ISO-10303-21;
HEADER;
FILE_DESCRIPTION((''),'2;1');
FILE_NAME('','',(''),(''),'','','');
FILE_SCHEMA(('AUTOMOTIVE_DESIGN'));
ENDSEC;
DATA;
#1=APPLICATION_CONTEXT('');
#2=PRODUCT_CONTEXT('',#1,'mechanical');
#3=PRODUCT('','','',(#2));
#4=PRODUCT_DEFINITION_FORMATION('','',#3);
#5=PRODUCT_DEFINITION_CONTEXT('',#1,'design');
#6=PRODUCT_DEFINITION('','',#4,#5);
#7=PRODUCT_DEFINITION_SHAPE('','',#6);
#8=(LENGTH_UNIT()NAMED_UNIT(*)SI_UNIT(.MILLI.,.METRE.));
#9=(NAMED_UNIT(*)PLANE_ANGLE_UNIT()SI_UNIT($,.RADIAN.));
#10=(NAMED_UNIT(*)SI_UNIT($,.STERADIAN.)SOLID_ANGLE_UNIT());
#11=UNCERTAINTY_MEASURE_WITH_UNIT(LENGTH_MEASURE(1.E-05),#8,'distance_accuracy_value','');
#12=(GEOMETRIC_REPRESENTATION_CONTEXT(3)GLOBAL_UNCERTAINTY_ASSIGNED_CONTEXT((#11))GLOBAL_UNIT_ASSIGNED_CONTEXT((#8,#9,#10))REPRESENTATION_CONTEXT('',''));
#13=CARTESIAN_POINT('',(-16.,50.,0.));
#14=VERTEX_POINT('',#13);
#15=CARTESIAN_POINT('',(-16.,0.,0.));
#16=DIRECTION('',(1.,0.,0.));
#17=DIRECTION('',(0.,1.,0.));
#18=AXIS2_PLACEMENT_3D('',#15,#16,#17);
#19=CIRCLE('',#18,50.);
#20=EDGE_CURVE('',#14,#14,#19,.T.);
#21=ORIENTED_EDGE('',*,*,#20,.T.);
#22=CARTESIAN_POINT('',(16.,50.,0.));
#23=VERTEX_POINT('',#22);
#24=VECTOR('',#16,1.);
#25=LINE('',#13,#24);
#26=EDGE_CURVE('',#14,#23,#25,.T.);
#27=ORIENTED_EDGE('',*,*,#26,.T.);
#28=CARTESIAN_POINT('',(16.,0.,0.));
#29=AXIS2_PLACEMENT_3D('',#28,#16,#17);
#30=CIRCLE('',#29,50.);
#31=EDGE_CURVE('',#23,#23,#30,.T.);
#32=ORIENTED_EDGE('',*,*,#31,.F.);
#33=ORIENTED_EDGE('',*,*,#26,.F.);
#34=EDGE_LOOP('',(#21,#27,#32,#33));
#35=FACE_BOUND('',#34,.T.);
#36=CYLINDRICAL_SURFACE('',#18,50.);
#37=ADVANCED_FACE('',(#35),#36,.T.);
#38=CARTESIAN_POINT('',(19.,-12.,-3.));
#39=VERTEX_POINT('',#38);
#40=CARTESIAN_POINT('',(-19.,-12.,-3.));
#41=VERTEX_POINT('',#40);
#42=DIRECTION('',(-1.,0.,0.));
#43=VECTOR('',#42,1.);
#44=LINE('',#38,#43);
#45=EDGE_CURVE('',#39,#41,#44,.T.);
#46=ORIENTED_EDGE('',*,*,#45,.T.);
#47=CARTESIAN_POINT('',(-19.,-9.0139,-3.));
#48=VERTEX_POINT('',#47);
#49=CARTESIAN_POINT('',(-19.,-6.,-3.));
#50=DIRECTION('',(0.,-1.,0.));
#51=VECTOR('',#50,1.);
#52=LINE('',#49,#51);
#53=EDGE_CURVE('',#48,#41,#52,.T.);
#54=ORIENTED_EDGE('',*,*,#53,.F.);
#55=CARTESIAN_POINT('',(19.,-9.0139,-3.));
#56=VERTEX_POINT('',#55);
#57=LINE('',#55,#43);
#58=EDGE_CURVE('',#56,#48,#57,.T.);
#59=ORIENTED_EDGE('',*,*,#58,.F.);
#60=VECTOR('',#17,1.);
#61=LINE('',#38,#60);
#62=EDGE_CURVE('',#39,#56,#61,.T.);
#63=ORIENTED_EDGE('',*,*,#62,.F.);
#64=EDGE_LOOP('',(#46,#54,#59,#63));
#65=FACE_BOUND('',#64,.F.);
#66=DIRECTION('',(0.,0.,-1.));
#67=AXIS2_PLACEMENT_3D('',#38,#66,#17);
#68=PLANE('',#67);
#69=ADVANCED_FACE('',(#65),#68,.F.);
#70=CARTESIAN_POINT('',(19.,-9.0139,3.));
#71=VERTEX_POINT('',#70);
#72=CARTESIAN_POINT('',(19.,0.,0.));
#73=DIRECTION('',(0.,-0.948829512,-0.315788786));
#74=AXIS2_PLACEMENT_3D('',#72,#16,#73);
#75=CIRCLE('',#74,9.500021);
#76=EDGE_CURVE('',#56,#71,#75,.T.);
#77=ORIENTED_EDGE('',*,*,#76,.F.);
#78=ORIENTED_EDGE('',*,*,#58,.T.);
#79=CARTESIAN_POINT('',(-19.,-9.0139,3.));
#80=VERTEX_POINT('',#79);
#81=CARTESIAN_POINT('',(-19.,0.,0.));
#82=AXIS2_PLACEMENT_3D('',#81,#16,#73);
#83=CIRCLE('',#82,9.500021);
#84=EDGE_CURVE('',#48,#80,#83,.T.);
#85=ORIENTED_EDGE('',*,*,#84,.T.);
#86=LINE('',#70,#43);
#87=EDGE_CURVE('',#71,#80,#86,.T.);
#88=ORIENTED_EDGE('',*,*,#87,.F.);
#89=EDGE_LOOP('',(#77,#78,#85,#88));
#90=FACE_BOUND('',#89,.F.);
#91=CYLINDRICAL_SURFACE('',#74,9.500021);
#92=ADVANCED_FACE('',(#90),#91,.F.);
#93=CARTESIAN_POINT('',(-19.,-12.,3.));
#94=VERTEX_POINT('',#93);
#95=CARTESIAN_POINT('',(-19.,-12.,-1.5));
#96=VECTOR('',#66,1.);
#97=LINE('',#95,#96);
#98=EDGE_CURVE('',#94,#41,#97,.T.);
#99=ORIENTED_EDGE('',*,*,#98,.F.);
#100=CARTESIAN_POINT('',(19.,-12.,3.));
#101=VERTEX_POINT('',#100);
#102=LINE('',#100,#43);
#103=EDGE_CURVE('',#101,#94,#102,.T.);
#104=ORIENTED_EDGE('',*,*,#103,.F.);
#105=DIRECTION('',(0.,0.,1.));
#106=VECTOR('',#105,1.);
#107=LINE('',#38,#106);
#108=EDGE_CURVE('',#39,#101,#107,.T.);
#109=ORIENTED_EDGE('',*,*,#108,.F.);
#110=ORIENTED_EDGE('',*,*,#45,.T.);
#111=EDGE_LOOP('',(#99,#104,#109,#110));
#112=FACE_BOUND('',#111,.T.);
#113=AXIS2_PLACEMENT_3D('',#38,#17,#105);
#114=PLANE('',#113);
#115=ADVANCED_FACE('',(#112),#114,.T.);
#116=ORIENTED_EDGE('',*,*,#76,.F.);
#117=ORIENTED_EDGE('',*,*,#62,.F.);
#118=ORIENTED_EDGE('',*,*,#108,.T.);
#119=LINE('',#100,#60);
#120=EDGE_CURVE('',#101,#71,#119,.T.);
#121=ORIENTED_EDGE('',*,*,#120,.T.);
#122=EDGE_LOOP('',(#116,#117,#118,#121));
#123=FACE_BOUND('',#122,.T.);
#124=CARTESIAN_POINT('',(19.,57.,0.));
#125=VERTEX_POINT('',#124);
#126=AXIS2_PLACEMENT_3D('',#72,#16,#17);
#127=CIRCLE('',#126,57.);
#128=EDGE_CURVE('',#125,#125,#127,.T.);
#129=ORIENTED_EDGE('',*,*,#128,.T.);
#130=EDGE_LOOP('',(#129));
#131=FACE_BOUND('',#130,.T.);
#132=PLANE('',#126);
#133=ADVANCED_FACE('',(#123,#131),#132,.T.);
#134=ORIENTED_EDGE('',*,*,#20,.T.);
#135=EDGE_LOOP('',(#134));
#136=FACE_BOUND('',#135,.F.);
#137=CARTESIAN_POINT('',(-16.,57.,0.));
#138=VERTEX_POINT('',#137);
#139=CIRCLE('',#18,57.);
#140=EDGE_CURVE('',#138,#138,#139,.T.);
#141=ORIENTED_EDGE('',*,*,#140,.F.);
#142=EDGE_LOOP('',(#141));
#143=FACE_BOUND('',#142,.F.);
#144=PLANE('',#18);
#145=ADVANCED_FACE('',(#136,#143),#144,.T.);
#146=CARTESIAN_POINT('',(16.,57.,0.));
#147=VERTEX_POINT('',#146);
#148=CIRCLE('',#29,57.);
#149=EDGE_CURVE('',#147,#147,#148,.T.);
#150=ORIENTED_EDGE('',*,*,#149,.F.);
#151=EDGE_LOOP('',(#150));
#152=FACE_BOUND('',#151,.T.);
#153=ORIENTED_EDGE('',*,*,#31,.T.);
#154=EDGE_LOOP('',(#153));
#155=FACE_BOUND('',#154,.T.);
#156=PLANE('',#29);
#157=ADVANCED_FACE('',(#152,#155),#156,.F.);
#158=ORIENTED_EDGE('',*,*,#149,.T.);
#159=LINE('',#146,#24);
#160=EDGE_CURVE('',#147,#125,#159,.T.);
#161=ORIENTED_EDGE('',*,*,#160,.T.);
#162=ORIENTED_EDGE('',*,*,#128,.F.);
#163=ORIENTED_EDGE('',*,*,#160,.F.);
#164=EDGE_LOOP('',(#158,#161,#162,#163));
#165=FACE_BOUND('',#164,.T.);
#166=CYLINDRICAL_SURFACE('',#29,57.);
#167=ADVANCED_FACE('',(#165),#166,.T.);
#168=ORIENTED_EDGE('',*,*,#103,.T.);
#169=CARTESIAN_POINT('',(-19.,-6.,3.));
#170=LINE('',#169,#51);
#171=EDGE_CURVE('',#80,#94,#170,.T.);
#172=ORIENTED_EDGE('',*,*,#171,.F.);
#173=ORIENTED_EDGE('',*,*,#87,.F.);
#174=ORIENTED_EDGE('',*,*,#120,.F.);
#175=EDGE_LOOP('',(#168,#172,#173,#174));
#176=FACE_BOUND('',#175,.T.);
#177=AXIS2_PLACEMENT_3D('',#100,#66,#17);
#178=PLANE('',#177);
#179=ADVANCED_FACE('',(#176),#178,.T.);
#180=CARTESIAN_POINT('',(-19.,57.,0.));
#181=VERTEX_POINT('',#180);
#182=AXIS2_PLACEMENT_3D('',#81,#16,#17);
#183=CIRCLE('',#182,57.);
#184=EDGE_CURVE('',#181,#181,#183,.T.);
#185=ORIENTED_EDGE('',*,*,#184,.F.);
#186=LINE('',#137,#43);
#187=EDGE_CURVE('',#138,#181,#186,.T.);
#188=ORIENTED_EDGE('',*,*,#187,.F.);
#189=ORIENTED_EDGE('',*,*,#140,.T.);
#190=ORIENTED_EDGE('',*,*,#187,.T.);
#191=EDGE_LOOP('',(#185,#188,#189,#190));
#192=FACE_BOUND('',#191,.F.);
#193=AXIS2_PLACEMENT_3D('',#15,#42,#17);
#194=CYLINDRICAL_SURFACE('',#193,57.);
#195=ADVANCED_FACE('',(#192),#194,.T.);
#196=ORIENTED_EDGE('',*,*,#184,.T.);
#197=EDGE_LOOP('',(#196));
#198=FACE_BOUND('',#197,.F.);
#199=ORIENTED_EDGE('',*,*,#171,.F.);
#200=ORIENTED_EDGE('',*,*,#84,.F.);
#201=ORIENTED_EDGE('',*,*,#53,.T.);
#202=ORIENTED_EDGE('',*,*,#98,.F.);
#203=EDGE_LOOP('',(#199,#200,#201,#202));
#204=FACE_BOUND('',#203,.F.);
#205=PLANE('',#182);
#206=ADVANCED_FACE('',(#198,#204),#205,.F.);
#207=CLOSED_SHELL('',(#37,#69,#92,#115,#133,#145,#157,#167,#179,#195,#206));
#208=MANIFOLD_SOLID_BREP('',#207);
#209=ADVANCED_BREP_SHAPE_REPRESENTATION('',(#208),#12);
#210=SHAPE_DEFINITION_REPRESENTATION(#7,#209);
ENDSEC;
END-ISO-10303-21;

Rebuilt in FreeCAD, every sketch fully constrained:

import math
import FreeCAD as App
import Part
import Sketcher

V = App.Vector
Q = App.Units.Quantity

doc = App.newDocument("Part")
body = doc.addObject("PartDesign::Body", "Body")

# Sketch on XY plane
sketch1 = doc.addObject("Sketcher::SketchObject", "Sketch")
body.addObject(sketch1)
sketch1.AttachmentSupport = (doc.XY_Plane, [""])
sketch1.MapMode = "FlatFace"
sketch1.addGeometry(Part.LineSegment(V(16, 50, 0), V(-16, 50, 0)), False)
sketch1.addGeometry(Part.LineSegment(V(-16, 50, 0), V(-16, 57, 0)), False)
sketch1.addGeometry(Part.LineSegment(V(-16, 57, 0), V(-19, 57, 0)), False)
sketch1.addGeometry(Part.LineSegment(V(-19, 57, 0), V(-19, 0, 0)), False)
sketch1.addGeometry(Part.LineSegment(V(-19, 0, 0), V(19, 0, 0)), False)
sketch1.addGeometry(Part.LineSegment(V(19, 0, 0), V(19, 57, 0)), False)
sketch1.addGeometry(Part.LineSegment(V(19, 57, 0), V(16, 57, 0)), False)
sketch1.addGeometry(Part.LineSegment(V(16, 57, 0), V(16, 50, 0)), False)
sketch1.addConstraint(Sketcher.Constraint("Coincident", 0, 2, 1, 1))
sketch1.addConstraint(Sketcher.Constraint("Coincident", 1, 2, 2, 1))
sketch1.addConstraint(Sketcher.Constraint("Coincident", 2, 2, 3, 1))
sketch1.addConstraint(Sketcher.Constraint("Coincident", 3, 2, 4, 1))
sketch1.addConstraint(Sketcher.Constraint("Coincident", 4, 2, 5, 1))
sketch1.addConstraint(Sketcher.Constraint("Coincident", 5, 2, 6, 1))
sketch1.addConstraint(Sketcher.Constraint("Coincident", 6, 2, 7, 1))
sketch1.addConstraint(Sketcher.Constraint("Coincident", 7, 2, 0, 1))
sketch1.addConstraint(Sketcher.Constraint("Horizontal", 0))
sketch1.addConstraint(Sketcher.Constraint("Vertical", 1))
sketch1.addConstraint(Sketcher.Constraint("Horizontal", 2))
sketch1.addConstraint(Sketcher.Constraint("Vertical", 3))
sketch1.addConstraint(Sketcher.Constraint("Horizontal", 4))
sketch1.addConstraint(Sketcher.Constraint("Vertical", 5))
sketch1.addConstraint(Sketcher.Constraint("Horizontal", 6))
sketch1.addConstraint(Sketcher.Constraint("Vertical", 7))
sketch1.addConstraint(Sketcher.Constraint("Symmetric", 3, 2, 4, 2, -1, 1))
sketch1.addConstraint(Sketcher.Constraint("Symmetric", 1, 2, 6, 2, -2))
sketch1.addConstraint(Sketcher.Constraint("DistanceX", 0, 2, 0, 1, Q("32 mm")))
sketch1.addConstraint(Sketcher.Constraint("DistanceX", 2, 2, 2, 1, Q("3 mm")))
sketch1.addConstraint(Sketcher.Constraint("DistanceY", 1, 1, 1, 2, Q("7 mm")))
sketch1.addConstraint(Sketcher.Constraint("DistanceY", 3, 2, 3, 1, Q("57 mm")))
revolution = doc.addObject("PartDesign::Revolution", "Revolution")
body.addObject(revolution)
revolution.Profile = sketch1
revolution.ReferenceAxis = (sketch1, ["H_Axis"])
revolution.Angle = 360

# Sketch on YZ plane
sketch2 = doc.addObject("Sketcher::SketchObject", "Sketch001")
body.addObject(sketch2)
sketch2.AttachmentSupport = (doc.YZ_Plane, [""])
sketch2.MapMode = "FlatFace"
sketch2.AttachmentOffset = App.Placement(V(0, 0, 19), App.Rotation())
sketch2.addGeometry(Part.LineSegment(V(-12, -3, 0), V(-9.0139, -3, 0)), False)
sketch2.addGeometry(Part.ArcOfCircle(Part.Circle(V(0, 0, 0), V(0, 0, 1), 9.500021), math.radians(-161.591561), math.radians(161.591561)), False)
sketch2.addGeometry(Part.LineSegment(V(-9.0139, 3, 0), V(-12, 3, 0)), False)
sketch2.addGeometry(Part.LineSegment(V(-12, 3, 0), V(-12, -3, 0)), False)
sketch2.addConstraint(Sketcher.Constraint("Coincident", 0, 2, 1, 1))
sketch2.addConstraint(Sketcher.Constraint("Coincident", 1, 2, 2, 1))
sketch2.addConstraint(Sketcher.Constraint("Coincident", 2, 2, 3, 1))
sketch2.addConstraint(Sketcher.Constraint("Coincident", 3, 2, 0, 1))
sketch2.addConstraint(Sketcher.Constraint("Horizontal", 0))
sketch2.addConstraint(Sketcher.Constraint("Horizontal", 2))
sketch2.addConstraint(Sketcher.Constraint("Vertical", 3))
sketch2.addConstraint(Sketcher.Constraint("Coincident", 1, 3, -1, 1))
sketch2.addConstraint(Sketcher.Constraint("Vertical", 0, 2, 1, 2))
sketch2.addConstraint(Sketcher.Constraint("Radius", 1, Q("9.5 mm")))
sketch2.addConstraint(Sketcher.Constraint("DistanceY", 3, 2, 3, 1, Q("6 mm")))
sketch2.addConstraint(Sketcher.Constraint("DistanceX", 2, 2, -1, 1, Q("12 mm")))
pocket1 = doc.addObject("PartDesign::Pocket", "Pocket")
body.addObject(pocket1)
pocket1.Profile = sketch2
pocket1.Type = "UpToFirst"

doc.recompute()
